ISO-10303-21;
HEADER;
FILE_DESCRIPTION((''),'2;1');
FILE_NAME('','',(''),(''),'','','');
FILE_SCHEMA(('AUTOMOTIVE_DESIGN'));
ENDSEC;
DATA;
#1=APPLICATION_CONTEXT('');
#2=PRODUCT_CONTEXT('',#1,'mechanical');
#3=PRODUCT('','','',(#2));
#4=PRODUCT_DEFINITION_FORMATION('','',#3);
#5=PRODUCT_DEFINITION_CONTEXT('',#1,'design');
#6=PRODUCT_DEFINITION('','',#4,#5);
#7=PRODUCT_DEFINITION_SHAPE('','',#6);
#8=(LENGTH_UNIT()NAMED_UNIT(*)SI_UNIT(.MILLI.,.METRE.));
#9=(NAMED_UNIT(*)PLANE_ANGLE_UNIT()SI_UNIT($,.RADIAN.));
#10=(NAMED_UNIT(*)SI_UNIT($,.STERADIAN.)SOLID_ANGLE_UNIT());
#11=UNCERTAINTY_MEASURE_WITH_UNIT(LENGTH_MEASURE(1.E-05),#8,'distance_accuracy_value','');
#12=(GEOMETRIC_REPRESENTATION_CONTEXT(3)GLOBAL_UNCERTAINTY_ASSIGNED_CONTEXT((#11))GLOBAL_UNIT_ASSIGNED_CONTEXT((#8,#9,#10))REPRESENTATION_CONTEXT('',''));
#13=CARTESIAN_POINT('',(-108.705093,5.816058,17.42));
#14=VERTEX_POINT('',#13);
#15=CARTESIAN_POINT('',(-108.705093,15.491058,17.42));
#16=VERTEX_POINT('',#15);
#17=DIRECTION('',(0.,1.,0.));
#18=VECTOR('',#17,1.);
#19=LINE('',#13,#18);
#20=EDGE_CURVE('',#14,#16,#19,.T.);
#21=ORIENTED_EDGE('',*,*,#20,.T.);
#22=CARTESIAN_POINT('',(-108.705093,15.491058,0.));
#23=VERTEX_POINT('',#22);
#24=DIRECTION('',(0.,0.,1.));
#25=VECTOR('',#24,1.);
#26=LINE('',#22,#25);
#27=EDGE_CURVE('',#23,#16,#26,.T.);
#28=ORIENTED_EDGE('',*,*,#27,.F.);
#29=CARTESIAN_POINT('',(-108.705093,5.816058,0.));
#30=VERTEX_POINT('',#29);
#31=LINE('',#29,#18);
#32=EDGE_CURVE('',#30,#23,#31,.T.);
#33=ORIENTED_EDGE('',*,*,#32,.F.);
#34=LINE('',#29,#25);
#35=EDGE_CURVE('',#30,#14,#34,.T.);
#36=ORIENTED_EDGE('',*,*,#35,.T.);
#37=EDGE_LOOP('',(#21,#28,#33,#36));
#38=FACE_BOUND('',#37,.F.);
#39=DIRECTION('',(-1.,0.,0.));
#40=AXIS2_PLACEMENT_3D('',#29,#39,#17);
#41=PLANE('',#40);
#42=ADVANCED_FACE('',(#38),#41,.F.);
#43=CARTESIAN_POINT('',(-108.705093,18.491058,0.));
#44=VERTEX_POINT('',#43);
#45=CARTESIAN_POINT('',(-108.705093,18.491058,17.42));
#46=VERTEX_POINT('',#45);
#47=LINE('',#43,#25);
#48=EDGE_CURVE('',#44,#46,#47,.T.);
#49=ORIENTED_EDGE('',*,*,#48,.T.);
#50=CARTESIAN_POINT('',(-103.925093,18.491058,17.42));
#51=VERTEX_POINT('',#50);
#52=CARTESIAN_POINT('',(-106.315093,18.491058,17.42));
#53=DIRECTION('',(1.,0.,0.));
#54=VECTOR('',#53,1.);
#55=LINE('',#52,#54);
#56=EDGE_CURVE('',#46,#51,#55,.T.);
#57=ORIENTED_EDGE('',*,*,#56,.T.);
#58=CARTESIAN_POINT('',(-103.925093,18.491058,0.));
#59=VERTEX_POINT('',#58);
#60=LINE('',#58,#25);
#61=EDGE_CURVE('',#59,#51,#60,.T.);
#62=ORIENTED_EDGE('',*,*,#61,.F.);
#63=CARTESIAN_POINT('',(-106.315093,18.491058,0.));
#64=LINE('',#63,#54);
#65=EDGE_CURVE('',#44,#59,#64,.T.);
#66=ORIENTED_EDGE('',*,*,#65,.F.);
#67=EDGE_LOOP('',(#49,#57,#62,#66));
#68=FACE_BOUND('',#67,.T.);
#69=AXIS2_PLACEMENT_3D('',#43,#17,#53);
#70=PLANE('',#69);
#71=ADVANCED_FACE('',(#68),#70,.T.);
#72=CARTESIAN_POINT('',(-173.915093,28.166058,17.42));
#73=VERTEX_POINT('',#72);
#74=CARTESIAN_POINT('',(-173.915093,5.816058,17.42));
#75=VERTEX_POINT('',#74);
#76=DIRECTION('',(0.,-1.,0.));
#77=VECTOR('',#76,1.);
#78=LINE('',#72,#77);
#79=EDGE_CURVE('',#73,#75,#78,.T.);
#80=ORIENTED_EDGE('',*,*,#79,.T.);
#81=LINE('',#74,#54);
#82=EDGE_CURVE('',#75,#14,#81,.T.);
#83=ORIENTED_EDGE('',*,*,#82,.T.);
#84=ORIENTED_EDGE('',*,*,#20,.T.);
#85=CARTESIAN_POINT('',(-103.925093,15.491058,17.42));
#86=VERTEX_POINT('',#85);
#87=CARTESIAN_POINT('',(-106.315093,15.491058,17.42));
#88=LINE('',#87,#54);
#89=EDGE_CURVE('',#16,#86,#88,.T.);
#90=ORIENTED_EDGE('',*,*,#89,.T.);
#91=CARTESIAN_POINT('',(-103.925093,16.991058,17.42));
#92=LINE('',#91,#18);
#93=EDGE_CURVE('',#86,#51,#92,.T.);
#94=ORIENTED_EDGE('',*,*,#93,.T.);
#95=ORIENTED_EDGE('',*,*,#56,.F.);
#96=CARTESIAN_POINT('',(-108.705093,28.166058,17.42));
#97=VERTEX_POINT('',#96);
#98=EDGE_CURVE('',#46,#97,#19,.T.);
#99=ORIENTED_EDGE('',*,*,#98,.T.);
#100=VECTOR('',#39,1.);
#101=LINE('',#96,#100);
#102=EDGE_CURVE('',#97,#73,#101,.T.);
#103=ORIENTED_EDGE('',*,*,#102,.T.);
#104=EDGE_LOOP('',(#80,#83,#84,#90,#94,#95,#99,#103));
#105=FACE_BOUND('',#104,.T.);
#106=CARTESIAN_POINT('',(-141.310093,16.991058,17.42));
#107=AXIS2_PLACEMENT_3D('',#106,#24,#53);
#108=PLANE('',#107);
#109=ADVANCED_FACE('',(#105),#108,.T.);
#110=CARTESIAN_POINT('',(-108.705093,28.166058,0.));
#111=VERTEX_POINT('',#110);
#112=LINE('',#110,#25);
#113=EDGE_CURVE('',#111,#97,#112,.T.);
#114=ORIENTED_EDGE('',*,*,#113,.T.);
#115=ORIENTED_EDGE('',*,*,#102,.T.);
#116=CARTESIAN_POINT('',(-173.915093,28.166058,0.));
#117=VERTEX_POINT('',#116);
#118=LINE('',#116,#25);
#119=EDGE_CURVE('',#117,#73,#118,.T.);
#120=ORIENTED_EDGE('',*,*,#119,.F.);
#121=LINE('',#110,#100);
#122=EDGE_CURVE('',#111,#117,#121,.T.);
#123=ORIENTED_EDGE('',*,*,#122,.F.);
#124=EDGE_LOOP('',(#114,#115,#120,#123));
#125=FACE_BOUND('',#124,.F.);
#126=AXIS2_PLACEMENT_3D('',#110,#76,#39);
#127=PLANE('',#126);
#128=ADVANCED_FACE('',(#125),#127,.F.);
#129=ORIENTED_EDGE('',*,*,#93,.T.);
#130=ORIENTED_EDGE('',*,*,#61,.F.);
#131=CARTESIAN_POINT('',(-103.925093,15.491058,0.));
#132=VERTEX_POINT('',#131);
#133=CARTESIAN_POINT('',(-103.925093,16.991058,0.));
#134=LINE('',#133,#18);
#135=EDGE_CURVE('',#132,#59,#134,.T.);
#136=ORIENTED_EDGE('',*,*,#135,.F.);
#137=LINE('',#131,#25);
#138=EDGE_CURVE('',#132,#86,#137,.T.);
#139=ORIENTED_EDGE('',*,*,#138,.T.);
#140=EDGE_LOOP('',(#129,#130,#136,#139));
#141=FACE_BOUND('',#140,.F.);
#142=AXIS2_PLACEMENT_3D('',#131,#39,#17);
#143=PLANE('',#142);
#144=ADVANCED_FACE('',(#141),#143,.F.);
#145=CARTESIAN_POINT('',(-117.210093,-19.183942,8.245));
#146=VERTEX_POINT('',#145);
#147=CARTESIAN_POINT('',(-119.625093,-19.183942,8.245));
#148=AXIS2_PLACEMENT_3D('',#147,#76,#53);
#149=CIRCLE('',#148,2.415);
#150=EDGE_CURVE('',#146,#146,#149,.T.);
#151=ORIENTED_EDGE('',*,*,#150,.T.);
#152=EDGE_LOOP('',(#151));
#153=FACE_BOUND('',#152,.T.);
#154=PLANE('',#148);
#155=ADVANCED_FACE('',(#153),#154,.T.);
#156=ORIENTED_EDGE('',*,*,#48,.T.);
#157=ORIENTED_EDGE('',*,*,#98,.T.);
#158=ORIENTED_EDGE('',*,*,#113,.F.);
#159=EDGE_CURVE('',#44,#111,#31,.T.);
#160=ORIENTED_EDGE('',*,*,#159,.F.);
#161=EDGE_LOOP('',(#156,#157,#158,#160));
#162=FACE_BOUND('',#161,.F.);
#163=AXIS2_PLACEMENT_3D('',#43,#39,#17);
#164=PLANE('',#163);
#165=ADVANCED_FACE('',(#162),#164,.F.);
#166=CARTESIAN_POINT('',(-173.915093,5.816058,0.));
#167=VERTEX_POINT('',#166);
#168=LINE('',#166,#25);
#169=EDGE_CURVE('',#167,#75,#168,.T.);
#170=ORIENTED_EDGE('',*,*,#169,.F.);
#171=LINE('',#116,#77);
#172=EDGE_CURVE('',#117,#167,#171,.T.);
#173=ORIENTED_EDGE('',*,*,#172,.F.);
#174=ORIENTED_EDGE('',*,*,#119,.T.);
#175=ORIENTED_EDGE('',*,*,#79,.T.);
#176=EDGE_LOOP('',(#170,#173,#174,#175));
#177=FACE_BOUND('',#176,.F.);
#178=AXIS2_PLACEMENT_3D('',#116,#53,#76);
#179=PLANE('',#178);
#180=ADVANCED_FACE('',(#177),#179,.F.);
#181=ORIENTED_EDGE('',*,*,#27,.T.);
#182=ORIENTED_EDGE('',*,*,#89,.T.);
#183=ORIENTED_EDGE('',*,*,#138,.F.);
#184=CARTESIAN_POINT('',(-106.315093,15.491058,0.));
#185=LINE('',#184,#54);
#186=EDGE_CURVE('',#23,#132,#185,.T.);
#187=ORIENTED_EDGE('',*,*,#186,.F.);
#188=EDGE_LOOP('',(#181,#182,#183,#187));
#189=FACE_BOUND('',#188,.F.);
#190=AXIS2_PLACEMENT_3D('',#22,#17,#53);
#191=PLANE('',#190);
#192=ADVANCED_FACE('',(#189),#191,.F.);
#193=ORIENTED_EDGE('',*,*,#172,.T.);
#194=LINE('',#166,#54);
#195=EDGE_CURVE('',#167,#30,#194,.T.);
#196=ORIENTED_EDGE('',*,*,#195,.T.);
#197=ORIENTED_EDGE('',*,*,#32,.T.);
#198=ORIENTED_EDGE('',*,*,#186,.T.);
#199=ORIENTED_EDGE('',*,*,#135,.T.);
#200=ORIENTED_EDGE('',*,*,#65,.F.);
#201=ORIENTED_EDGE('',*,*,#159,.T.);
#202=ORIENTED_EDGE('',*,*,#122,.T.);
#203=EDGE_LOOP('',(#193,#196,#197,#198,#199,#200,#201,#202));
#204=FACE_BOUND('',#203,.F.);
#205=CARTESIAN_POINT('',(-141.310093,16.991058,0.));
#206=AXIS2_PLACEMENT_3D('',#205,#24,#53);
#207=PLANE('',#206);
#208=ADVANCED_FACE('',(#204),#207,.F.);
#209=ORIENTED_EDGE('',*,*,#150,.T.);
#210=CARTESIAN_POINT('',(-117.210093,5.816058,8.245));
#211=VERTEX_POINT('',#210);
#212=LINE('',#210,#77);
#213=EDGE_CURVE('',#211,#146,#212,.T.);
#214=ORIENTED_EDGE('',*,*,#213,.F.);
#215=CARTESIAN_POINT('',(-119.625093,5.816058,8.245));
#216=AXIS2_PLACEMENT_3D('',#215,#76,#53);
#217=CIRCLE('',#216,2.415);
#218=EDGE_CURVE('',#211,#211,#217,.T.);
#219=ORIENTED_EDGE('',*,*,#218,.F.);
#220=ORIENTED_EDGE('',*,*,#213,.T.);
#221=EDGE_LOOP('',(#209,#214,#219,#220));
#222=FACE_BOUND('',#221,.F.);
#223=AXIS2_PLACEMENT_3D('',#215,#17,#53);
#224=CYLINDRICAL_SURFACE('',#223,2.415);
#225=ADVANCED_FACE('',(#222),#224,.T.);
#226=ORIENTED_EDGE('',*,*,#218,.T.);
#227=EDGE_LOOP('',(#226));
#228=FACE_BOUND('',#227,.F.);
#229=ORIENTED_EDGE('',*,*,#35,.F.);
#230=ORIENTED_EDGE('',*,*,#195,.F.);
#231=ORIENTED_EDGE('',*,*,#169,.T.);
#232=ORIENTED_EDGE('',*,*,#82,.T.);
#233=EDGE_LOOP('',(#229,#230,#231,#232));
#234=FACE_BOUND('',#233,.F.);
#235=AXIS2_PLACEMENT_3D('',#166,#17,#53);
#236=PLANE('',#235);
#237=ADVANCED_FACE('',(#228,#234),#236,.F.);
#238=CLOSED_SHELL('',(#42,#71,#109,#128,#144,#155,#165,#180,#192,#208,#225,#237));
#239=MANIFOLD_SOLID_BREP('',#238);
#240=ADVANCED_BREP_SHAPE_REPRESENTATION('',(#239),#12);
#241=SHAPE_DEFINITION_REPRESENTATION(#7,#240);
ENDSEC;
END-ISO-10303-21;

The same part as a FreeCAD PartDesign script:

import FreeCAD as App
import Part
import Sketcher
from FreeCAD import Vector
Q = App.Units.Quantity


def add_polygon(sketch, points):
    """Adds a closed chain of lines whose ends are joined by coincident constraints."""
    first, n = sketch.GeometryCount, len(points)
    for a, b in zip(points, points[1:] + points[:1]):
        sketch.addGeometry(Part.LineSegment(App.Vector(*a, 0), App.Vector(*b, 0)), False)
    for i in range(n):
        sketch.addConstraint(Sketcher.Constraint("Coincident", first + i, 2, first + (i + 1) % n, 1))

doc = App.newDocument("Part")
params = doc.addObject("Spreadsheet::Sheet", "Params")
for row, (alias, value) in enumerate([
    ("sketch1_height", "3 mm"),
    ("sketch1_width", "4.78 mm"),
    ("sketch1_width2", "65.21 mm"),
    ("sketch1_height2", "22.35 mm"),
    ("pad1_length", "17.42 mm"),
    ("sketch2_diameter", "4.83 mm"),
    ("pad2_length", "25 mm"),
], start=1):
    params.set(f"A{row}", alias)
    params.set(f"B{row}", "=" + value)
    params.setAlias(f"B{row}", alias)

body = doc.addObject("PartDesign::Body", "Body")

# Sketch on XY plane
sketch1 = doc.addObject("Sketcher::SketchObject", "Sketch")
body.addObject(sketch1)
sketch1.AttachmentSupport = (doc.XY_Plane, [""])
sketch1.MapMode = "FlatFace"
add_polygon(sketch1, [(-108.7, 5.8), (-108.7, 15.5), (-103.9, 15.5), (-103.9, 18.5), (-108.7, 18.5), (-108.7, 28.2), (-173.9, 28.2), (-173.9, 5.8)])  # lines 0-7
sketch1.addConstraint(Sketcher.Constraint("Vertical", 0))
sketch1.addConstraint(Sketcher.Constraint("Horizontal", 1))
sketch1.addConstraint(Sketcher.Constraint("Vertical", 2))
sketch1.addConstraint(Sketcher.Constraint("Horizontal", 3))
sketch1.addConstraint(Sketcher.Constraint("Vertical", 4))
sketch1.addConstraint(Sketcher.Constraint("Horizontal", 5))
sketch1.addConstraint(Sketcher.Constraint("Vertical", 6))
sketch1.addConstraint(Sketcher.Constraint("Horizontal", 7))
sketch1.addConstraint(Sketcher.Constraint("Vertical", 0, 2, 3, 2))
sketch1.addConstraint(Sketcher.Constraint("Equal", 0, 4))
sketch1.addConstraint(Sketcher.Constraint("DistanceY", 2, 1, 2, 2, Q("3 mm")))
sketch1.addConstraint(Sketcher.Constraint("DistanceX", 1, 1, 1, 2, Q("4.78 mm")))
sketch1.addConstraint(Sketcher.Constraint("DistanceX", 5, 2, 5, 1, Q("65.21 mm")))
sketch1.addConstraint(Sketcher.Constraint("DistanceY", 6, 2, 6, 1, Q("22.35 mm")))
sketch1.addConstraint(Sketcher.Constraint("DistanceY", -1, 1, 0, 2, Q("15.491058 mm")))
sketch1.addConstraint(Sketcher.Constraint("DistanceX", 0, 2, -1, 1, Q("108.705093 mm")))
sketch1.setExpression("Constraints[18]", "Params.sketch1_height")
sketch1.setExpression("Constraints[19]", "Params.sketch1_width")
sketch1.setExpression("Constraints[20]", "Params.sketch1_width2")
sketch1.setExpression("Constraints[21]", "Params.sketch1_height2")
pad1 = doc.addObject("PartDesign::Pad", "Pad")
body.addObject(pad1)
pad1.Profile = sketch1
pad1.setExpression("Length", "Params.pad1_length")

# Sketch on XZ plane
sketch2 = doc.addObject("Sketcher::SketchObject", "Sketch001")
body.addObject(sketch2)
sketch2.AttachmentSupport = (doc.XZ_Plane, [""])
sketch2.MapMode = "FlatFace"
sketch2.AttachmentOffset = App.Placement(Vector(0, 0, -5.816058), App.Rotation())
sketch2.addGeometry(Part.Circle(Vector(-119.6, 8.2, 0), Vector(0, 0, 1), 2.4), False)
sketch2.addConstraint(Sketcher.Constraint("Diameter", 0, Q("4.83 mm")))
sketch2.addConstraint(Sketcher.Constraint("DistanceY", -1, 1, 0, 3, Q("8.245 mm")))
sketch2.addConstraint(Sketcher.Constraint("DistanceX", 0, 3, -1, 1, Q("119.625093 mm")))
sketch2.setExpression("Constraints[0]", "Params.sketch2_diameter")
pad2 = doc.addObject("PartDesign::Pad", "Pad001")
body.addObject(pad2)
pad2.Profile = sketch2
pad2.setExpression("Length", "Params.pad2_length")

doc.recompute()
